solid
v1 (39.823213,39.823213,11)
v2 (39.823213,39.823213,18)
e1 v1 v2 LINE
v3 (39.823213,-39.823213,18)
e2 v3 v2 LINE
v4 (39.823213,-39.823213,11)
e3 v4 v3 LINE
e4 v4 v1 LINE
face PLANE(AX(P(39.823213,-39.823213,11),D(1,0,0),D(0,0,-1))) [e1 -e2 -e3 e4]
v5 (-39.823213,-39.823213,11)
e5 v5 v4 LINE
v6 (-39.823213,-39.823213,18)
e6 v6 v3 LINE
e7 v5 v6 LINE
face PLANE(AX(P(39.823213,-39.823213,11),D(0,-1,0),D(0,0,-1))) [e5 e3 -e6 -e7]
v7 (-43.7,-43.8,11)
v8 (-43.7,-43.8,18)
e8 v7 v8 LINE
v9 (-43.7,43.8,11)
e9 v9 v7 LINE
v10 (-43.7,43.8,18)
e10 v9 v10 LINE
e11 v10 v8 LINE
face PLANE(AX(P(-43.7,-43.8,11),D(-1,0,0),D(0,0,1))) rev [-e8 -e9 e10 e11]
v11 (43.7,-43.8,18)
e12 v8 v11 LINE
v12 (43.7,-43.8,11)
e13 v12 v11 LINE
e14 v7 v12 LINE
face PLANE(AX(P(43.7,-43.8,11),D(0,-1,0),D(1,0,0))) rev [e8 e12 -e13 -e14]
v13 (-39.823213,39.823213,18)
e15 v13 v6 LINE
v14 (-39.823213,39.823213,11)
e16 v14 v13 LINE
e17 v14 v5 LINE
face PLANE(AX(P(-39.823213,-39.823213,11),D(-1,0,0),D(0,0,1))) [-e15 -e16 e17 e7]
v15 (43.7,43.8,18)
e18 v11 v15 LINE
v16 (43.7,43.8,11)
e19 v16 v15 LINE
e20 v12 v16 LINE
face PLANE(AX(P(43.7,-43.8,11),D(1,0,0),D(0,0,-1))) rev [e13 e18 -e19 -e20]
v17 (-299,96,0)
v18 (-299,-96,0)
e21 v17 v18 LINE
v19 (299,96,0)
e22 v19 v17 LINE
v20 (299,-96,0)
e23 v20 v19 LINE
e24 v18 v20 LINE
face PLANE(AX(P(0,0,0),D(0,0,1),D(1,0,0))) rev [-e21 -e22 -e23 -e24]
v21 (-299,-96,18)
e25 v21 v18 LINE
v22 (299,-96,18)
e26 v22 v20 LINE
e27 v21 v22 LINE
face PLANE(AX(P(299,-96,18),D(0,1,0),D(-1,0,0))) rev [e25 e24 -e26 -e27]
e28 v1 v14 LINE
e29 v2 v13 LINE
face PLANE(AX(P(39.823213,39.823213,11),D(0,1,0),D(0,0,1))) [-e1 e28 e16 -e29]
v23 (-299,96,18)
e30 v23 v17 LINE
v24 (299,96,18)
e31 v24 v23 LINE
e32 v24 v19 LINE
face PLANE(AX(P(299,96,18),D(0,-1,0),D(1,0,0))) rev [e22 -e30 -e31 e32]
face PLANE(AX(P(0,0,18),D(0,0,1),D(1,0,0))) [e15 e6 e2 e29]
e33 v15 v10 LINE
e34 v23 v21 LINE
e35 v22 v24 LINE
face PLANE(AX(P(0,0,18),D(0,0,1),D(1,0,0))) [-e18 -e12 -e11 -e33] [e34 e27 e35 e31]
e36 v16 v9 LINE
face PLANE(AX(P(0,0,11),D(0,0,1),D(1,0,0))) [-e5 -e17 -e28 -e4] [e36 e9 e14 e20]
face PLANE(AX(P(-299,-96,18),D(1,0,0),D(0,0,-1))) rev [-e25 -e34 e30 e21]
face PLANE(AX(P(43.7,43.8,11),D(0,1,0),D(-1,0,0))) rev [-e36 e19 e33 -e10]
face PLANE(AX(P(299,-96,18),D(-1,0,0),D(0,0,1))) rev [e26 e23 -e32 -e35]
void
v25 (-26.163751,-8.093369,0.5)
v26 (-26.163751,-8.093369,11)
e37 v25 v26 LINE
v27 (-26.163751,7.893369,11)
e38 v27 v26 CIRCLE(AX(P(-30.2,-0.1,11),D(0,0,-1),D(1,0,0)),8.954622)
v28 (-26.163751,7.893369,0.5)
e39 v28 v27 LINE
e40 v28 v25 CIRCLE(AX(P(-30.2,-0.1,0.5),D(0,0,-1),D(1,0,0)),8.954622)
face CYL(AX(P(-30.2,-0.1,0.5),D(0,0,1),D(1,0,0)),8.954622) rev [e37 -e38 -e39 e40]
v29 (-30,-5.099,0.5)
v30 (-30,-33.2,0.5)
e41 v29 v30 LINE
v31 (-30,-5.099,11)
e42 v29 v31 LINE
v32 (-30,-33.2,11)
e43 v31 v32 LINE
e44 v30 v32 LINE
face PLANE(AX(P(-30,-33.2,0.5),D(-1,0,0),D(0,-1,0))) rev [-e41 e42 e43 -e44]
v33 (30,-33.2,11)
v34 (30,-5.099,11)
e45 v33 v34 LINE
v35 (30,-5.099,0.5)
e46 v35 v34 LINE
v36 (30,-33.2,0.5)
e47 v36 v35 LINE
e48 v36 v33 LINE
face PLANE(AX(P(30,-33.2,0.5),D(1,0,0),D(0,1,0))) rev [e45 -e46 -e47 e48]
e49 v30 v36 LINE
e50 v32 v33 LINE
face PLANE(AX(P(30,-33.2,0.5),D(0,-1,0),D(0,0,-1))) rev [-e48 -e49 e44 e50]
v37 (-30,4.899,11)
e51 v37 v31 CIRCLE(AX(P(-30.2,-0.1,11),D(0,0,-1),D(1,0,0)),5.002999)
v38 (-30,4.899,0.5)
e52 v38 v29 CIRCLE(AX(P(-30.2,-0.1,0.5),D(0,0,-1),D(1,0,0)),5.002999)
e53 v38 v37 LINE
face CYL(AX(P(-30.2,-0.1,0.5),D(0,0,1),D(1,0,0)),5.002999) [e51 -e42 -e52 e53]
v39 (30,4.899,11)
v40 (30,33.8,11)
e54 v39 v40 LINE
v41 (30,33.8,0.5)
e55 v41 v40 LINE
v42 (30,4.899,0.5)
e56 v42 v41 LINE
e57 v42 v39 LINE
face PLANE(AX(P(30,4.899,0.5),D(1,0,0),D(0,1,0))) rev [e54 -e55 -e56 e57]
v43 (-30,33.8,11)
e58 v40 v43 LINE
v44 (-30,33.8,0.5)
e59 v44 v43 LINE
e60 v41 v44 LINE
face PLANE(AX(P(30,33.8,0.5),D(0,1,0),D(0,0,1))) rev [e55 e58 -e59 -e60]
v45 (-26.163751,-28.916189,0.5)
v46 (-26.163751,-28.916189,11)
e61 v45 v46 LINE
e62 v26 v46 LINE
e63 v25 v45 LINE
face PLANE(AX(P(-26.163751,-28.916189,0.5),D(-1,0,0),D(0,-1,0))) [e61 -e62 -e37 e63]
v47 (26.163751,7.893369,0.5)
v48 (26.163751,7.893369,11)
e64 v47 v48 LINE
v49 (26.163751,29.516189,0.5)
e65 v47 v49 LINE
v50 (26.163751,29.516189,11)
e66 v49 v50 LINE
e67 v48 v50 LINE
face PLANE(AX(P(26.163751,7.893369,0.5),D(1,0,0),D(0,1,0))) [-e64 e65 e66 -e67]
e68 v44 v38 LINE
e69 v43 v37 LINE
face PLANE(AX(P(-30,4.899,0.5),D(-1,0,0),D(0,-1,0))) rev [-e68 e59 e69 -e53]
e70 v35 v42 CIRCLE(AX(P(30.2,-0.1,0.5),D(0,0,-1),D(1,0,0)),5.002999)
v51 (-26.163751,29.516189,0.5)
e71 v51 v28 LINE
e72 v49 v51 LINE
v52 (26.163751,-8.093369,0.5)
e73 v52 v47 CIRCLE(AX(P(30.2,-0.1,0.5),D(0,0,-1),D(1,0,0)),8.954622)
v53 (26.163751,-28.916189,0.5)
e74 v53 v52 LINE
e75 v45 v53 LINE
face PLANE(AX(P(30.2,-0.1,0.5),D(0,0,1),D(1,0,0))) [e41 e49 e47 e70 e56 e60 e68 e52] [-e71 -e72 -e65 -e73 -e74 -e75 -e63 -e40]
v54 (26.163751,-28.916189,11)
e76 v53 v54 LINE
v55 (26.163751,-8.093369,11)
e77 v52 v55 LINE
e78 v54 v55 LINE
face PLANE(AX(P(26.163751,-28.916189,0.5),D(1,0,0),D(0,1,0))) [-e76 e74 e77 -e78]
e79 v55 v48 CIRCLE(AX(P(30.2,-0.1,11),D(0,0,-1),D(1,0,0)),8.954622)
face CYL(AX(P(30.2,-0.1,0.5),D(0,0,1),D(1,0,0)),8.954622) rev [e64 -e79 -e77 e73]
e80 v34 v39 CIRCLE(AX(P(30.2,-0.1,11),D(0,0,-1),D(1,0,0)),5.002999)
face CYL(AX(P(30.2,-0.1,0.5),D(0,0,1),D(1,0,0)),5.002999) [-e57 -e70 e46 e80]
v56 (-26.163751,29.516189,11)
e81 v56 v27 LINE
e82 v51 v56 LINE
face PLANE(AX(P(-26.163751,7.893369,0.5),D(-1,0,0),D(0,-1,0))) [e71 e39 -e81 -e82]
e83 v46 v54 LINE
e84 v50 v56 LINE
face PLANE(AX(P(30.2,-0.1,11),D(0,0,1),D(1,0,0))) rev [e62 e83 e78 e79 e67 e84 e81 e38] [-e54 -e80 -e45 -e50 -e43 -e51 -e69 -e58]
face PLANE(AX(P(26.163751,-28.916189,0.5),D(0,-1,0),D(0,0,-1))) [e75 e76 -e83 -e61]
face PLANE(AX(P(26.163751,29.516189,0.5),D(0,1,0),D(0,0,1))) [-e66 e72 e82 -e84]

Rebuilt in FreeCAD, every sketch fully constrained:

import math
import FreeCAD as App
import Part
import Sketcher

V = App.Vector
Q = App.Units.Quantity

doc = App.newDocument("Part")
body = doc.addObject("PartDesign::Body", "Body")

sketch1 = body.newObject("Sketcher::SketchObject", "Sketch")
sketch1.AttachmentSupport = (doc.getObject("XY_Plane"), [""])
sketch1.MapMode = "FlatFace"
sketch1.addGeometry(Part.LineSegment(V(-299, 96, 0), V(-299, -96, 0)), False)
sketch1.addGeometry(Part.LineSegment(V(-299, -96, 0), V(299, -96, 0)), False)
sketch1.addGeometry(Part.LineSegment(V(299, -96, 0), V(299, 96, 0)), False)
sketch1.addGeometry(Part.LineSegment(V(299, 96, 0), V(-299, 96, 0)), False)
sketch1.addConstraint(Sketcher.Constraint("Coincident", 0, 2, 1, 1))
sketch1.addConstraint(Sketcher.Constraint("Coincident", 1, 2, 2, 1))
sketch1.addConstraint(Sketcher.Constraint("Coincident", 2, 2, 3, 1))
sketch1.addConstraint(Sketcher.Constraint("Coincident", 3, 2, 0, 1))
sketch1.addConstraint(Sketcher.Constraint("Vertical", 0))
sketch1.addConstraint(Sketcher.Constraint("Horizontal", 1))
sketch1.addConstraint(Sketcher.Constraint("Vertical", 2))
sketch1.addConstraint(Sketcher.Constraint("Horizontal", 3))
sketch1.addConstraint(Sketcher.Constraint("Symmetric", 0, 2, 2, 2, -1, 1))
sketch1.addConstraint(Sketcher.Constraint("DistanceX", 1, 1, 1, 2, Q("598 mm")))
sketch1.addConstraint(Sketcher.Constraint("DistanceY", 0, 2, 0, 1, Q("192 mm")))
pad1 = body.newObject("PartDesign::Pad", "Pad")
pad1.Profile = sketch1
pad1.Length = 18

sketch2 = body.newObject("Sketcher::SketchObject", "Sketch001")
sketch2.AttachmentSupport = (doc.getObject("XY_Plane"), [""])
sketch2.MapMode = "FlatFace"
sketch2.AttachmentOffset = App.Placement(V(0, 0, 18), App.Rotation())
sketch2.addGeometry(Part.LineSegment(V(-43.7, 43.8, 0), V(-43.7, -43.8, 0)), False)
sketch2.addGeometry(Part.LineSegment(V(-43.7, -43.8, 0), V(43.7, -43.8, 0)), False)
sketch2.addGeometry(Part.LineSegment(V(43.7, -43.8, 0), V(43.7, 43.8, 0)), False)
sketch2.addGeometry(Part.LineSegment(V(43.7, 43.8, 0), V(-43.7, 43.8, 0)), False)
sketch2.addGeometry(Part.LineSegment(V(39.823213, -39.823213, 0), V(-39.823213, -39.823213, 0)), False)
sketch2.addGeometry(Part.LineSegment(V(-39.823213, -39.823213, 0), V(-39.823213, 39.823213, 0)), False)
sketch2.addGeometry(Part.LineSegment(V(-39.823213, 39.823213, 0), V(39.823213, 39.823213, 0)), False)
sketch2.addGeometry(Part.LineSegment(V(39.823213, 39.823213, 0), V(39.823213, -39.823213, 0)), False)
sketch2.addConstraint(Sketcher.Constraint("Coincident", 0, 2, 1, 1))
sketch2.addConstraint(Sketcher.Constraint("Coincident", 1, 2, 2, 1))
sketch2.addConstraint(Sketcher.Constraint("Coincident", 2, 2, 3, 1))
sketch2.addConstraint(Sketcher.Constraint("Coincident", 3, 2, 0, 1))
sketch2.addConstraint(Sketcher.Constraint("Coincident", 4, 2, 5, 1))
sketch2.addConstraint(Sketcher.Constraint("Coincident", 5, 2, 6, 1))
sketch2.addConstraint(Sketcher.Constraint("Coincident", 6, 2, 7, 1))
sketch2.addConstraint(Sketcher.Constraint("Coincident", 7, 2, 4, 1))
sketch2.addConstraint(Sketcher.Constraint("Vertical", 0))
sketch2.addConstraint(Sketcher.Constraint("Horizontal", 1))
sketch2.addConstraint(Sketcher.Constraint("Vertical", 2))
sketch2.addConstraint(Sketcher.Constraint("Horizontal", 3))
sketch2.addConstraint(Sketcher.Constraint("Horizontal", 4))
sketch2.addConstraint(Sketcher.Constraint("Vertical", 5))
sketch2.addConstraint(Sketcher.Constraint("Horizontal", 6))
sketch2.addConstraint(Sketcher.Constraint("Vertical", 7))
sketch2.addConstraint(Sketcher.Constraint("Symmetric", 0, 2, 2, 2, -1, 1))
sketch2.addConstraint(Sketcher.Constraint("Symmetric", 4, 2, 6, 2, -1, 1))
sketch2.addConstraint(Sketcher.Constraint("Equal", 6, 5))
sketch2.addConstraint(Sketcher.Constraint("DistanceX", 1, 1, 1, 2, Q("87.4 mm")))
sketch2.addConstraint(Sketcher.Constraint("DistanceY", 0, 2, 0, 1, Q("87.6 mm")))
sketch2.addConstraint(Sketcher.Constraint("DistanceX", 4, 2, 4, 1, Q("79.646426 mm")))
pocket1 = body.newObject("PartDesign::Pocket", "Pocket")
pocket1.Profile = sketch2
pocket1.Length = 7

sketch3 = body.newObject("Sketcher::SketchObject", "Sketch002")
sketch3.AttachmentSupport = (doc.getObject("XY_Plane"), [""])
sketch3.MapMode = "FlatFace"
sketch3.AttachmentOffset = App.Placement(V(0, 0, 11), App.Rotation())
sketch3.addGeometry(Part.LineSegment(V(-30, -33.2, 0), V(30, -33.2, 0)), False)
sketch3.addGeometry(Part.LineSegment(V(30, -33.2, 0), V(30, -5.099, 0)), False)
sketch3.addGeometry(Part.ArcOfCircle(Part.Circle(V(30.2, -0.1, 0), V(0, 0, 1), 5.002999), math.radians(92.291068), math.radians(267.708932)), False)
sketch3.addGeometry(Part.LineSegment(V(30, 4.899, 0), V(30, 33.8, 0)), False)
sketch3.addGeometry(Part.LineSegment(V(30, 33.8, 0), V(-30, 33.8, 0)), False)
sketch3.addGeometry(Part.LineSegment(V(-30, 33.8, 0), V(-30, 4.899, 0)), False)
sketch3.addGeometry(Part.ArcOfCircle(Part.Circle(V(-30.2, -0.1, 0), V(0, 0, 1), 5.002999), math.radians(-87.708932), math.radians(87.708932)), False)
sketch3.addGeometry(Part.LineSegment(V(-30, -5.099, 0), V(-30, -33.2, 0)), False)
sketch3.addGeometry(Part.LineSegment(V(26.163751, -28.916189, 0), V(-26.163751, -28.916189, 0)), False)
sketch3.addGeometry(Part.LineSegment(V(-26.163751, -28.916189, 0), V(-26.163751, -8.093369, 0)), False)
sketch3.addGeometry(Part.ArcOfCircle(Part.Circle(V(-30.2, -0.1, 0), V(0, 0, 1), 8.954622), math.radians(-63.208523), math.radians(63.208523)), False)
sketch3.addGeometry(Part.LineSegment(V(-26.163751, 7.893369, 0), V(-26.163751, 29.516189, 0)), False)
sketch3.addGeometry(Part.LineSegment(V(-26.163751, 29.516189, 0), V(26.163751, 29.516189, 0)), False)
sketch3.addGeometry(Part.LineSegment(V(26.163751, 29.516189, 0), V(26.163751, 7.893369, 0)), False)
sketch3.addGeometry(Part.ArcOfCircle(Part.Circle(V(30.2, -0.1, 0), V(0, 0, 1), 8.954622), math.radians(116.791477), math.radians(243.208523)), False)
sketch3.addGeometry(Part.LineSegment(V(26.163751, -8.093369, 0), V(26.163751, -28.916189, 0)), False)
sketch3.addConstraint(Sketcher.Constraint("Coincident", 0, 2, 1, 1))
sketch3.addConstraint(Sketcher.Constraint("Coincident", 1, 2, 2, 2))
sketch3.addConstraint(Sketcher.Constraint("Coincident", 2, 1, 3, 1))
sketch3.addConstraint(Sketcher.Constraint("Coincident", 3, 2, 4, 1))
sketch3.addConstraint(Sketcher.Constraint("Coincident", 4, 2, 5, 1))
sketch3.addConstraint(Sketcher.Constraint("Coincident", 5, 2, 6, 2))
sketch3.addConstraint(Sketcher.Constraint("Coincident", 6, 1, 7, 1))
sketch3.addConstraint(Sketcher.Constraint("Coincident", 7, 2, 0, 1))
sketch3.addConstraint(Sketcher.Constraint("Coincident", 8, 2, 9, 1))
sketch3.addConstraint(Sketcher.Constraint("Coincident", 9, 2, 10, 1))
sketch3.addConstraint(Sketcher.Constraint("Coincident", 10, 2, 11, 1))
sketch3.addConstraint(Sketcher.Constraint("Coincident", 11, 2, 12, 1))
sketch3.addConstraint(Sketcher.Constraint("Coincident", 12, 2, 13, 1))
sketch3.addConstraint(Sketcher.Constraint("Coincident", 13, 2, 14, 1))
sketch3.addConstraint(Sketcher.Constraint("Coincident", 14, 2, 15, 1))
sketch3.addConstraint(Sketcher.Constraint("Coincident", 15, 2, 8, 1))
sketch3.addConstraint(Sketcher.Constraint("Horizontal", 0))
sketch3.addConstraint(Sketcher.Constraint("Vertical", 1))
sketch3.addConstraint(Sketcher.Constraint("Vertical", 3))
sketch3.addConstraint(Sketcher.Constraint("Horizontal", 4))
sketch3.addConstraint(Sketcher.Constraint("Vertical", 5))
sketch3.addConstraint(Sketcher.Constraint("Vertical", 7))
sketch3.addConstraint(Sketcher.Constraint("Horizontal", 8))
sketch3.addConstraint(Sketcher.Constraint("Vertical", 9))
sketch3.addConstraint(Sketcher.Constraint("Vertical", 11))
sketch3.addConstraint(Sketcher.Constraint("Horizontal", 12))
sketch3.addConstraint(Sketcher.Constraint("Vertical", 13))
sketch3.addConstraint(Sketcher.Constraint("Vertical", 15))
sketch3.addConstraint(Sketcher.Constraint("Coincident", 10, 3, 6, 3))
sketch3.addConstraint(Sketcher.Constraint("Coincident", 14, 3, 2, 3))
sketch3.addConstraint(Sketcher.Constraint("Equal", 2, 6))
sketch3.addConstraint(Sketcher.Constraint("Equal", 10, 14))
sketch3.addConstraint(Sketcher.Constraint("Symmetric", 2, 3, 6, 3, -2))
sketch3.addConstraint(Sketcher.Constraint("Horizontal", 2, 1, 5, 2))
sketch3.addConstraint(Sketcher.Constraint("Horizontal", 1, 2, 6, 1))
sketch3.addConstraint(Sketcher.Constraint("Horizontal", 10, 2, 13, 2))
sketch3.addConstraint(Sketcher.Constraint("Horizontal", 9, 2, 14, 2))
sketch3.addConstraint(Sketcher.Constraint("Vertical", 1, 2, 2, 1))
sketch3.addConstraint(Sketcher.Constraint("Vertical", 9, 2, 10, 2))
sketch3.addConstraint(Sketcher.Constraint("DistanceX", 0, 1, 0, 2, Q("60 mm")))
sketch3.addConstraint(Sketcher.Constraint("Radius", 2, Q("5.002999 mm")))
sketch3.addConstraint(Sketcher.Constraint("DistanceY", 0, 2, 3, 2, Q("67 mm")))
sketch3.addConstraint(Sketcher.Constraint("DistanceX", -1, 1, 2, 3, Q("30.2 mm")))
sketch3.addConstraint(Sketcher.Constraint("DistanceY", 2, 3, -1, 1, Q("0.1 mm")))
sketch3.addConstraint(Sketcher.Constraint("DistanceY", 0, 2, -1, 1, Q("33.2 mm")))
sketch3.addConstraint(Sketcher.Constraint("Radius", 10, Q("8.954622 mm")))
sketch3.addConstraint(Sketcher.Constraint("DistanceY", 9, 1, 9, 2, Q("20.82282 mm")))
sketch3.addConstraint(Sketcher.Constraint("DistanceY", 11, 1, 11, 2, Q("21.62282 mm")))
sketch3.addConstraint(Sketcher.Constraint("DistanceX", 8, 2, 8, 1, Q("52.327502 mm")))
pocket2 = body.newObject("PartDesign::Pocket", "Pocket001")
pocket2.Profile = sketch3
pocket2.Length = 10.5

doc.recompute()
